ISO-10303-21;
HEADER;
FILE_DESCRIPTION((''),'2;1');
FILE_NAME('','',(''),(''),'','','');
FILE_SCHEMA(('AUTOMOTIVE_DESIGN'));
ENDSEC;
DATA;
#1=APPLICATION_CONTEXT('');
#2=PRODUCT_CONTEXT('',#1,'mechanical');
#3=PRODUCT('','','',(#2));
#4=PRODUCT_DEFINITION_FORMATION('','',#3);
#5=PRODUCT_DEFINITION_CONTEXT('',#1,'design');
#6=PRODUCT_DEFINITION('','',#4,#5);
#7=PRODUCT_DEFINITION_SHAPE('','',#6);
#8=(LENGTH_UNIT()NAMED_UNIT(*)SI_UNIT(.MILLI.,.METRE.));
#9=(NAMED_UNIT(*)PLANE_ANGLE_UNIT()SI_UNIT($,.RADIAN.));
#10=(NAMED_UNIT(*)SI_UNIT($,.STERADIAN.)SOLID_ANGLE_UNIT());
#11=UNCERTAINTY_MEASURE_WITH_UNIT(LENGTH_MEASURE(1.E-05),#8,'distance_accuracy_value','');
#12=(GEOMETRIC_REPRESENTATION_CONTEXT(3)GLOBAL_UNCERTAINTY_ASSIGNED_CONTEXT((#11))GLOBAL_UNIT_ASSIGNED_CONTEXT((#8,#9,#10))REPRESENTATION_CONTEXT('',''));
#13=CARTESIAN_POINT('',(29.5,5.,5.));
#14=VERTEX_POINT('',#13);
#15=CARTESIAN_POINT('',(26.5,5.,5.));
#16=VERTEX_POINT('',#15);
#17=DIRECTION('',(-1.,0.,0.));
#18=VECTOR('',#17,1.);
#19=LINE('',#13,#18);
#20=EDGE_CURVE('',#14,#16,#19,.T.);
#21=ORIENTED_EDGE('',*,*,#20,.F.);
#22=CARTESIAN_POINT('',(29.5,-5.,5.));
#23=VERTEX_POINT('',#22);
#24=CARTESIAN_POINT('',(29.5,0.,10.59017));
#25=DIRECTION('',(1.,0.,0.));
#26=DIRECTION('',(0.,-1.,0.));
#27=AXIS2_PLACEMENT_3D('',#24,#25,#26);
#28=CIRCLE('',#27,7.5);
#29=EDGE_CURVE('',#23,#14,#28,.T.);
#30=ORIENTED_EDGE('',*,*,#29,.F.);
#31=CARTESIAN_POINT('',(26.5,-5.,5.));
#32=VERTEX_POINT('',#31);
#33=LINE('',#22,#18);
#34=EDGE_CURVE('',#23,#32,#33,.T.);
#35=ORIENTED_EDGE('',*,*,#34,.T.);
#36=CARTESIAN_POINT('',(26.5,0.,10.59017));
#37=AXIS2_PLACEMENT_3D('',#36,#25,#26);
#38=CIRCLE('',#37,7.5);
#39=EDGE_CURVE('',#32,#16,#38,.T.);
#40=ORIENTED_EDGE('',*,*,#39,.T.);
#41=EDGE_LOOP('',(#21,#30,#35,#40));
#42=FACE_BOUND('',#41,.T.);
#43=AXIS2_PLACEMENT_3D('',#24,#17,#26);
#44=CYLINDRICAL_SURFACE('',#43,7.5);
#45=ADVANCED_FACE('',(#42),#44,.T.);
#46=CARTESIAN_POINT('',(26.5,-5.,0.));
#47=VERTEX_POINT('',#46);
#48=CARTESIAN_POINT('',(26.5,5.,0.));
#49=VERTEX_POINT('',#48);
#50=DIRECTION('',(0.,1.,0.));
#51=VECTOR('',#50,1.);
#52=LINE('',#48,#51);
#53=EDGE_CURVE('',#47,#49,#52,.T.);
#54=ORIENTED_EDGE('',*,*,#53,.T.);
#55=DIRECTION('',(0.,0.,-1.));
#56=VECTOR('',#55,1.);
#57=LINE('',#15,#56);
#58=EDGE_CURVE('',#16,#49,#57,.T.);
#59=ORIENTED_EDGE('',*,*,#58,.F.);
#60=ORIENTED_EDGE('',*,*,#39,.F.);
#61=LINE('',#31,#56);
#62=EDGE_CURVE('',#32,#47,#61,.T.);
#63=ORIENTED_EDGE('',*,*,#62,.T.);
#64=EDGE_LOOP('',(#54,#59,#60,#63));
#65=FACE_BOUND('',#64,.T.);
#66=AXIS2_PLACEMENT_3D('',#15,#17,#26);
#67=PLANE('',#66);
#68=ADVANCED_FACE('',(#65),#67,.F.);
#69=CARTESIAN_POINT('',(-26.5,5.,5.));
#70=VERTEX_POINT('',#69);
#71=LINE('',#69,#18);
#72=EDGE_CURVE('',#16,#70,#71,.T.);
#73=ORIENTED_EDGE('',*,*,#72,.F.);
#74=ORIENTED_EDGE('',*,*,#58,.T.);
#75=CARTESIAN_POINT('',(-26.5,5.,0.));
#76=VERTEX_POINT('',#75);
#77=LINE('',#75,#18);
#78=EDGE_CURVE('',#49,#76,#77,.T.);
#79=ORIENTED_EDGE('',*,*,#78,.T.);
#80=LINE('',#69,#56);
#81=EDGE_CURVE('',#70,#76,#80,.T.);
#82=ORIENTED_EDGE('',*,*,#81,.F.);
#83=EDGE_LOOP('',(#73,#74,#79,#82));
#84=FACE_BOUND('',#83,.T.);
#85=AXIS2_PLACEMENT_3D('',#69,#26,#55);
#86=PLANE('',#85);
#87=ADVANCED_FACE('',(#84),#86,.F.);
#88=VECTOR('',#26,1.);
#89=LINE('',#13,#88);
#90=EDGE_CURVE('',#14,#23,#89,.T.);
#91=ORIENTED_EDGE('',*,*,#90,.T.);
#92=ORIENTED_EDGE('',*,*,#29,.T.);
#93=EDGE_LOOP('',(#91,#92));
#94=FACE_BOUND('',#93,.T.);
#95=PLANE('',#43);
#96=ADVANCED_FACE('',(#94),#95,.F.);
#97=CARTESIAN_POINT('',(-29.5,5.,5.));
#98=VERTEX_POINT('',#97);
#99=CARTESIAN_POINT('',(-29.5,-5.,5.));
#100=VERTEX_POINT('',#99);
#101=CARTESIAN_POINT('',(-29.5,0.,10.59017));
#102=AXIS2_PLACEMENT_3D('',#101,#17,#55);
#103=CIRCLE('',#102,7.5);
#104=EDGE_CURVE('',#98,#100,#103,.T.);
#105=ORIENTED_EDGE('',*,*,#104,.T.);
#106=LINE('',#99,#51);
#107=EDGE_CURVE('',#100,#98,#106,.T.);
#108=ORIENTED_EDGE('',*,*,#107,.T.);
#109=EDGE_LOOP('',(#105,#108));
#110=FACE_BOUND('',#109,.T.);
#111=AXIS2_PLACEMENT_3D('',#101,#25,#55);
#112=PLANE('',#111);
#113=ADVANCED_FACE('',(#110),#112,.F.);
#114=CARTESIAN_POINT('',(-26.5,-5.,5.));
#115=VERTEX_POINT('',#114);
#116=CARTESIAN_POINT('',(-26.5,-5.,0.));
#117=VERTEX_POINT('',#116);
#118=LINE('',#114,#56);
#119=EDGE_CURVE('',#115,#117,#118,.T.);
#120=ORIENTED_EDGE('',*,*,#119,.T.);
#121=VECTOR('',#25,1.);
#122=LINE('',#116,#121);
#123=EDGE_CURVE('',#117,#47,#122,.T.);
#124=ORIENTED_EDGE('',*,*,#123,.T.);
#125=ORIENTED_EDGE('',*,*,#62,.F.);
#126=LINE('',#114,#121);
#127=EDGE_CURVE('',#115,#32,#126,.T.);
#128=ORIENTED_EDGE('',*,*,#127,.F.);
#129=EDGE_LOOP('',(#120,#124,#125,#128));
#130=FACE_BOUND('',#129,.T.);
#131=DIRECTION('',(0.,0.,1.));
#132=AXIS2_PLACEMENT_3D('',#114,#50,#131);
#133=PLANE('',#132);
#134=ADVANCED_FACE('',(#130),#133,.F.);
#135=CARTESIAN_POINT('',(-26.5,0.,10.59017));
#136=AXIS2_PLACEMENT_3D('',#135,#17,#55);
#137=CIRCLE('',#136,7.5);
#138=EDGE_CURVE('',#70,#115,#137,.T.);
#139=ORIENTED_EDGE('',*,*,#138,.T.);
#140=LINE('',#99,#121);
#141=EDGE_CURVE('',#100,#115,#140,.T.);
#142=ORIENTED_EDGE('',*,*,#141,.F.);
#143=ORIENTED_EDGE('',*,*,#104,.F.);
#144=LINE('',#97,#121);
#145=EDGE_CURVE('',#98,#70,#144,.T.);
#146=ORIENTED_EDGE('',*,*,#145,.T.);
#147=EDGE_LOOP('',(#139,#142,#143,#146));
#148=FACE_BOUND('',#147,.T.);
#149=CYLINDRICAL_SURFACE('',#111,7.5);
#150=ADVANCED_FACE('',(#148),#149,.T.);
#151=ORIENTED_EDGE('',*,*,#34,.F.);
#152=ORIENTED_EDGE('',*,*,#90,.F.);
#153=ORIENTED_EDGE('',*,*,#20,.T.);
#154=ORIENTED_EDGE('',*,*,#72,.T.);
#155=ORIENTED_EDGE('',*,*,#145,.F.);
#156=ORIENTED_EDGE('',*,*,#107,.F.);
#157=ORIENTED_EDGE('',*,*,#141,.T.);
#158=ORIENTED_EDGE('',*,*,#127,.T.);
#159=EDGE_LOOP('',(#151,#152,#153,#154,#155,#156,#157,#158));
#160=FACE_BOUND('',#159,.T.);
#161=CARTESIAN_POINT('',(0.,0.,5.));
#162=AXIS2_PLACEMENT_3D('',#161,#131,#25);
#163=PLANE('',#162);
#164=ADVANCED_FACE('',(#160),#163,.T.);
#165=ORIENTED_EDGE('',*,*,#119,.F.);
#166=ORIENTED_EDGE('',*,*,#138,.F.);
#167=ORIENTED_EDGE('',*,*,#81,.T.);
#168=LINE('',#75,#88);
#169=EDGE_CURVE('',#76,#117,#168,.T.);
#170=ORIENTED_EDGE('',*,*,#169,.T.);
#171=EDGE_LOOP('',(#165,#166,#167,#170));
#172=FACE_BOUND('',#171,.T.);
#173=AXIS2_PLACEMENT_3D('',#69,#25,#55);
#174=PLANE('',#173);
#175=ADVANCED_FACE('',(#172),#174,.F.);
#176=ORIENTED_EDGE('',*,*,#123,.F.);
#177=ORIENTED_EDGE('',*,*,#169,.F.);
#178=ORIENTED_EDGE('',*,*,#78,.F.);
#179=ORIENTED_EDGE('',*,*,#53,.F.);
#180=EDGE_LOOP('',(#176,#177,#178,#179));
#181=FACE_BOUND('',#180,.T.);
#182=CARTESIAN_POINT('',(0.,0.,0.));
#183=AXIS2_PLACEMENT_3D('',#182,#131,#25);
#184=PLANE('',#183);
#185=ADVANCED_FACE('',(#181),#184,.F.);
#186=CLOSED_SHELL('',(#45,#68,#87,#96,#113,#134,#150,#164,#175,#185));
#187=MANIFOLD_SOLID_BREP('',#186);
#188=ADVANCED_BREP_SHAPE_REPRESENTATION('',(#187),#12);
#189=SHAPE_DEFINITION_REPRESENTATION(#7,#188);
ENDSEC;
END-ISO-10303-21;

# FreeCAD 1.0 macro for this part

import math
import FreeCAD as App
import Part
import Sketcher
from FreeCAD import Vector

doc = App.newDocument("Part")
params = doc.addObject("Spreadsheet::Sheet", "Params")
for row, (alias, value) in enumerate([
    ("sketch1_width", "53 mm"),
    ("sketch1_height", "10 mm"),
    ("pad1_length", "5 mm"),
    ("sketch2_radius", "7.5 mm"),
    ("sketch2_width", "10 mm"),
    ("pad2_length", "3 mm"),
    ("sketch3_radius", "7.5 mm"),
    ("sketch3_width", "10 mm"),
    ("pad3_length", "3 mm"),
], start=1):
    params.set(f"A{row}", alias)
    params.set(f"B{row}", "=" + value)
    params.setAlias(f"B{row}", alias)

body = doc.addObject("PartDesign::Body", "Body")

# Sketch on XY plane
sketch1 = body.newObject("Sketcher::SketchObject", "Sketch")
sketch1.AttachmentSupport = (doc.getObject("XY_Plane"), [""])
sketch1.MapMode = "FlatFace"
sketch1.addGeometry([
    Part.LineSegment(Vector(-26.5, 5, 0), Vector(-26.5, -5, 0)),
    Part.LineSegment(Vector(-26.5, -5, 0), Vector(26.5, -5, 0)),
    Part.LineSegment(Vector(26.5, -5, 0), Vector(26.5, 5, 0)),
    Part.LineSegment(Vector(26.5, 5, 0), Vector(-26.5, 5, 0)),
], False)
sketch1.addConstraint([
    Sketcher.Constraint("Coincident", 0, 2, 1, 1),
    Sketcher.Constraint("Coincident", 1, 2, 2, 1),
    Sketcher.Constraint("Coincident", 2, 2, 3, 1),
    Sketcher.Constraint("Coincident", 3, 2, 0, 1),
    Sketcher.Constraint("Vertical", 0),
    Sketcher.Constraint("Horizontal", 1),
    Sketcher.Constraint("Vertical", 2),
    Sketcher.Constraint("Horizontal", 3),
    Sketcher.Constraint("Symmetric", 0, 2, 2, 2, -1, 1),
    Sketcher.Constraint("DistanceX", 1, 1, 1, 2, 53.0),
    Sketcher.Constraint("DistanceY", 0, 2, 0, 1, 10.0),
])
sketch1.setExpression("Constraints[9]", "Params.sketch1_width")
sketch1.setExpression("Constraints[10]", "Params.sketch1_height")
pad1 = body.newObject("PartDesign::Pad", "Pad")
pad1.Profile = sketch1
pad1.setExpression("Length", "Params.pad1_length")

# Sketch on YZ plane
sketch2 = body.newObject("Sketcher::SketchObject", "Sketch001")
sketch2.AttachmentSupport = (doc.getObject("YZ_Plane"), [""])
sketch2.MapMode = "FlatFace"
sketch2.AttachmentOffset = App.Placement(Vector(0, 0, 26.5), App.Rotation())
sketch2.addGeometry([
    Part.LineSegment(Vector(5, 5, 0), Vector(-5, 5, 0)),
    Part.ArcOfCircle(Part.Circle(Vector(0, 10.59017, 0), Vector(0, 0, 1), 7.5), math.radians(-131.810315), math.radians(-48.189685)),
], False)
sketch2.addConstraint([
    Sketcher.Constraint("Coincident", 0, 1, 1, 2),
    Sketcher.Constraint("Coincident", 1, 1, 0, 2),
    Sketcher.Constraint("Horizontal", 0),
    Sketcher.Constraint("PointOnObject", 1, 3, -2),
    Sketcher.Constraint("Radius", 1, 7.5),
    Sketcher.Constraint("DistanceX", 0, 2, 0, 1, 10.0),
    Sketcher.Constraint("DistanceY", -1, 1, 0, 1, 5.0),
])
sketch2.setExpression("Constraints[4]", "Params.sketch2_radius")
sketch2.setExpression("Constraints[5]", "Params.sketch2_width")
pad2 = body.newObject("PartDesign::Pad", "Pad001")
pad2.Profile = sketch2
pad2.setExpression("Length", "Params.pad2_length")

# Sketch on YZ plane
sketch3 = body.newObject("Sketcher::SketchObject", "Sketch002")
sketch3.AttachmentSupport = (doc.getObject("YZ_Plane"), [""])
sketch3.MapMode = "FlatFace"
sketch3.AttachmentOffset = App.Placement(Vector(0, 0, -29.5), App.Rotation())
sketch3.addGeometry([
    Part.LineSegment(Vector(-5, 5, 0), Vector(5, 5, 0)),
    Part.ArcOfCircle(Part.Circle(Vector(0, 10.59017, 0), Vector(0, 0, 1), 7.5), math.radians(-131.810315), math.radians(-48.189685)),
], False)
sketch3.addConstraint([
    Sketcher.Constraint("Coincident", 0, 1, 1, 1),
    Sketcher.Constraint("Coincident", 1, 2, 0, 2),
    Sketcher.Constraint("Horizontal", 0),
    Sketcher.Constraint("PointOnObject", 1, 3, -2),
    Sketcher.Constraint("Radius", 1, 7.5),
    Sketcher.Constraint("DistanceX", 0, 1, 0, 2, 10.0),
    Sketcher.Constraint("DistanceY", -1, 1, 0, 1, 5.0),
])
sketch3.setExpression("Constraints[4]", "Params.sketch3_radius")
sketch3.setExpression("Constraints[5]", "Params.sketch3_width")
pad3 = body.newObject("PartDesign::Pad", "Pad002")
pad3.Profile = sketch3
pad3.setExpression("Length", "Params.pad3_length")

doc.recompute()
